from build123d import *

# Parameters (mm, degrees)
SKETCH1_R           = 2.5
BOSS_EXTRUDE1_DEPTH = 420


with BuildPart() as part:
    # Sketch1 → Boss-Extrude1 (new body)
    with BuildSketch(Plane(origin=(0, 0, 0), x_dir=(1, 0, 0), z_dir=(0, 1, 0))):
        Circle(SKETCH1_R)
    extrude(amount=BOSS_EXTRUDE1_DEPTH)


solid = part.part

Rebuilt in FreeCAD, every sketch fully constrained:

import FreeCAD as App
import Part
import Sketcher

V = App.Vector
Q = App.Units.Quantity

doc = App.newDocument("Part")
body = doc.addObject("PartDesign::Body", "Body")

sketch1 = body.newObject("Sketcher::SketchObject", "Sketch")
sketch1.AttachmentSupport = (doc.getObject("XZ_Plane"), [""])
sketch1.MapMode = "FlatFace"
sketch1.addGeometry(Part.Circle(V(0, 0, 0), V(0, 0, 1), 2.5), False)
sketch1.addConstraint(Sketcher.Constraint("Coincident", 0, 3, -1, 1))
sketch1.addConstraint(Sketcher.Constraint("Diameter", 0, Q("5 mm")))
pad1 = body.newObject("PartDesign::Pad", "Pad")
pad1.Profile = sketch1
pad1.Length = 420
pad1.Reversed = True

doc.recompute()
